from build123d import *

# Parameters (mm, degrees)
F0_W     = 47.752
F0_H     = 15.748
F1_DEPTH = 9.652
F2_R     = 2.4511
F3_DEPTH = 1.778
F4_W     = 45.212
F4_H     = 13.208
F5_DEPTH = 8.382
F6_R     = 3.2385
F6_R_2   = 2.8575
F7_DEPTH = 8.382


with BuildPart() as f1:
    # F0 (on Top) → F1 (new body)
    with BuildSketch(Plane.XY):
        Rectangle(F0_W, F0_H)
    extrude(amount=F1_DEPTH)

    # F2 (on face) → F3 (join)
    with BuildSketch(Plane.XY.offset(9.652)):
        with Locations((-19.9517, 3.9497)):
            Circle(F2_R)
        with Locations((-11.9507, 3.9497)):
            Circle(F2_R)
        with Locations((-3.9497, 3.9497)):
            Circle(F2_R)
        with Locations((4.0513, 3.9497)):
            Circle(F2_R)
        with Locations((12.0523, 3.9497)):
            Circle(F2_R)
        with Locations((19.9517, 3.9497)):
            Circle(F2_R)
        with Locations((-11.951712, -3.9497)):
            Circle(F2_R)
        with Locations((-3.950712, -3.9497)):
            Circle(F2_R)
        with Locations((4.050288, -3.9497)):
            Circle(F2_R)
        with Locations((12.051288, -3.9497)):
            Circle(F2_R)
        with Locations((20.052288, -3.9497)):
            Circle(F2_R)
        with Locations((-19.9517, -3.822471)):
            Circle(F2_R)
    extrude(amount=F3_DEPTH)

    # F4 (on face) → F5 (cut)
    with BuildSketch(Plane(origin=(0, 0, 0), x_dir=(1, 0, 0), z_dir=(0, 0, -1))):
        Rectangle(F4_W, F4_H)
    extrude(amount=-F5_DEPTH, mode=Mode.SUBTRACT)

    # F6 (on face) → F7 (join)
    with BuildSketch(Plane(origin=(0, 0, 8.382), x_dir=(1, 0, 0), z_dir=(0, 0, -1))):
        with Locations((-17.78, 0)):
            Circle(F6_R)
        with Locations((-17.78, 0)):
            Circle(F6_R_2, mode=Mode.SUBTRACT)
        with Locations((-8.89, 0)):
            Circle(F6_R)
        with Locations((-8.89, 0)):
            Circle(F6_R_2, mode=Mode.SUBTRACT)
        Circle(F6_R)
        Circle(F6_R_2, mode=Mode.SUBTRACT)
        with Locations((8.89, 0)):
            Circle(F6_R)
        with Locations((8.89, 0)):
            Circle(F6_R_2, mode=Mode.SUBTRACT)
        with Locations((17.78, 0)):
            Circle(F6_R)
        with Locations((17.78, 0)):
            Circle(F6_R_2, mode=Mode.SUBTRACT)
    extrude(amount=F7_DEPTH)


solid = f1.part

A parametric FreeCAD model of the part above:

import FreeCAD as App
import Part
import Sketcher
from FreeCAD import Vector
Q = App.Units.Quantity

doc = App.newDocument("Part")
params = doc.addObject("Spreadsheet::Sheet", "Params")
for row, (alias, value) in enumerate([
    ("sketch1_width", "1.88 in"),
    ("sketch1_height", "0.62 in"),
    ("pad1_length", "0.38 in"),
    ("sketch2_diameter", "0.193 in"),
    ("pad2_length", "0.07 in"),
    ("sketch3_width", "1.78 in"),
    ("sketch3_height", "0.52 in"),
    ("pocket1_length", "0.33 in"),
    ("sketch4_diameter", "0.255 in"),
    ("sketch4_diameter2", "0.225 in"),
    ("pad3_length", "0.33 in"),
], start=1):
    params.set(f"A{row}", alias)
    params.set(f"B{row}", "=" + value)
    params.setAlias(f"B{row}", alias)

body = doc.addObject("PartDesign::Body", "Body")

sketch1 = doc.addObject("Sketcher::SketchObject", "Sketch")
body.addObject(sketch1)
sketch1.AttachmentSupport = (doc.XY_Plane, [""])
sketch1.MapMode = "FlatFace"
sketch1.addGeometry([
    Part.LineSegment(Vector(-23.876, 7.874, 0), Vector(-23.876, -7.874, 0)),
    Part.LineSegment(Vector(-23.876, -7.874, 0), Vector(23.876, -7.874, 0)),
    Part.LineSegment(Vector(23.876, -7.874, 0), Vector(23.876, 7.874, 0)),
    Part.LineSegment(Vector(23.876, 7.874, 0), Vector(-23.876, 7.874, 0)),
], False)
sketch1.addConstraint([
    Sketcher.Constraint("Coincident", 0, 2, 1, 1),
    Sketcher.Constraint("Coincident", 1, 2, 2, 1),
    Sketcher.Constraint("Coincident", 2, 2, 3, 1),
    Sketcher.Constraint("Coincident", 3, 2, 0, 1),
    Sketcher.Constraint("Vertical", 0),
    Sketcher.Constraint("Horizontal", 1),
    Sketcher.Constraint("Vertical", 2),
    Sketcher.Constraint("Horizontal", 3),
    Sketcher.Constraint("Symmetric", 0, 2, 2, 2, -1, 1),
    Sketcher.Constraint("DistanceX", 1, 1, 1, 2, Q("1.88 in")),
    Sketcher.Constraint("DistanceY", 0, 2, 0, 1, Q("0.62 in")),
])
sketch1.setExpression("Constraints[9]", "Params.sketch1_width")
sketch1.setExpression("Constraints[10]", "Params.sketch1_height")
pad1 = doc.addObject("PartDesign::Pad", "Pad")
body.addObject(pad1)
pad1.Profile = sketch1
pad1.setExpression("Length", "Params.pad1_length")

sketch2 = doc.addObject("Sketcher::SketchObject", "Sketch001")
body.addObject(sketch2)
sketch2.AttachmentSupport = (doc.XY_Plane, [""])
sketch2.MapMode = "FlatFace"
sketch2.AttachmentOffset = App.Placement(Vector(0, 0, 0.38 * 25.4), App.Rotation())
sketch2.addGeometry([
    Part.Circle(Vector(-19.9517, 3.9497, 0), Vector(0, 0, 1), 2.4511),
    Part.Circle(Vector(-11.9507, 3.9497, 0), Vector(0, 0, 1), 2.4511),
    Part.Circle(Vector(-3.9497, 3.9497, 0), Vector(0, 0, 1), 2.4511),
    Part.Circle(Vector(4.0513, 3.9497, 0), Vector(0, 0, 1), 2.4511),
    Part.Circle(Vector(12.0523, 3.9497, 0), Vector(0, 0, 1), 2.4511),
    Part.Circle(Vector(19.9517, 3.9497, 0), Vector(0, 0, 1), 2.4511),
    Part.Circle(Vector(-11.951712, -3.9497, 0), Vector(0, 0, 1), 2.4511),
    Part.Circle(Vector(-3.950712, -3.9497, 0), Vector(0, 0, 1), 2.4511),
    Part.Circle(Vector(4.050288, -3.9497, 0), Vector(0, 0, 1), 2.4511),
    Part.Circle(Vector(12.051288, -3.9497, 0), Vector(0, 0, 1), 2.4511),
    Part.Circle(Vector(20.052288, -3.9497, 0), Vector(0, 0, 1), 2.4511),
    Part.Circle(Vector(-19.9517, -3.822471, 0), Vector(0, 0, 1), 2.4511),
], False)
sketch2.addConstraint([
    Sketcher.Constraint("Equal", 0, 1),
    Sketcher.Constraint("Equal", 1, 2),
    Sketcher.Constraint("Equal", 2, 3),
    Sketcher.Constraint("Equal", 3, 4),
    Sketcher.Constraint("Equal", 4, 5),
    Sketcher.Constraint("Equal", 5, 6),
    Sketcher.Constraint("Equal", 6, 7),
    Sketcher.Constraint("Equal", 7, 8),
    Sketcher.Constraint("Equal", 8, 9),
    Sketcher.Constraint("Equal", 9, 10),
    Sketcher.Constraint("Equal", 10, 11),
    Sketcher.Constraint("Symmetric", 0, 3, 5, 3, -2),
    Sketcher.Constraint("Horizontal", 0, 3, 1, 3),
    Sketcher.Constraint("Horizontal", 1, 3, 2, 3),
    Sketcher.Constraint("Horizontal", 2, 3, 3, 3),
    Sketcher.Constraint("Horizontal", 3, 3, 4, 3),
    Sketcher.Constraint("Horizontal", 6, 3, 7, 3),
    Sketcher.Constraint("Horizontal", 7, 3, 8, 3),
    Sketcher.Constraint("Horizontal", 8, 3, 9, 3),
    Sketcher.Constraint("Horizontal", 9, 3, 10, 3),
    Sketcher.Constraint("Vertical", 0, 3, 11, 3),
    Sketcher.Constraint("Diameter", 0, Q("0.193 in")),
    Sketcher.Constraint("DistanceX", 0, 3, 2, 3, Q("0.63 in")),
    Sketcher.Constraint("DistanceX", 1, 3, 3, 3, Q("0.63 in")),
    Sketcher.Constraint("DistanceX", 2, 3, 4, 3, Q("0.63 in")),
    Sketcher.Constraint("DistanceX", 6, 3, 8, 3, Q("0.63 in")),
    Sketcher.Constraint("DistanceX", 7, 3, 9, 3, Q("0.63 in")),
    Sketcher.Constraint("DistanceX", 8, 3, 10, 3, Q("0.63 in")),
    Sketcher.Constraint("DistanceX", 0, 3, 1, 3, Q("0.315 in")),
    Sketcher.Constraint("DistanceX", 4, 3, 5, 3, Q("0.311 in")),
    Sketcher.Constraint("DistanceY", 6, 3, 1, 3, Q("0.311 in")),
    Sketcher.Constraint("DistanceX", 6, 3, 7, 3, Q("0.315 in")),
    Sketcher.Constraint("DistanceY", -1, 1, 0, 3, Q("0.1555 in")),
    Sketcher.Constraint("DistanceX", 7, 3, -1, 1, Q("3.950712 mm")),
    Sketcher.Constraint("DistanceY", 11, 3, -1, 1, Q("3.822471 mm")),
])
sketch2.setExpression("Constraints[21]", "Params.sketch2_diameter")
pad2 = doc.addObject("PartDesign::Pad", "Pad001")
body.addObject(pad2)
pad2.Profile = sketch2
pad2.setExpression("Length", "Params.pad2_length")

sketch3 = doc.addObject("Sketcher::SketchObject", "Sketch002")
body.addObject(sketch3)
sketch3.AttachmentSupport = (doc.XY_Plane, [""])
sketch3.MapMode = "FlatFace"
sketch3.addGeometry([
    Part.LineSegment(Vector(-22.606, -6.604, 0), Vector(-22.606, 6.604, 0)),
    Part.LineSegment(Vector(-22.606, 6.604, 0), Vector(22.606, 6.604, 0)),
    Part.LineSegment(Vector(22.606, 6.604, 0), Vector(22.606, -6.604, 0)),
    Part.LineSegment(Vector(22.606, -6.604, 0), Vector(-22.606, -6.604, 0)),
], False)
sketch3.addConstraint([
    Sketcher.Constraint("Coincident", 0, 2, 1, 1),
    Sketcher.Constraint("Coincident", 1, 2, 2, 1),
    Sketcher.Constraint("Coincident", 2, 2, 3, 1),
    Sketcher.Constraint("Coincident", 3, 2, 0, 1),
    Sketcher.Constraint("Vertical", 0),
    Sketcher.Constraint("Horizontal", 1),
    Sketcher.Constraint("Vertical", 2),
    Sketcher.Constraint("Horizontal", 3),
    Sketcher.Constraint("Symmetric", 0, 2, 2, 2, -1, 1),
    Sketcher.Constraint("DistanceX", 1, 1, 1, 2, Q("1.78 in")),
    Sketcher.Constraint("DistanceY", 0, 1, 0, 2, Q("0.52 in")),
])
sketch3.setExpression("Constraints[9]", "Params.sketch3_width")
sketch3.setExpression("Constraints[10]", "Params.sketch3_height")
pocket1 = doc.addObject("PartDesign::Pocket", "Pocket")
body.addObject(pocket1)
pocket1.Profile = sketch3
pocket1.setExpression("Length", "Params.pocket1_length")
pocket1.Reversed = True

sketch4 = doc.addObject("Sketcher::SketchObject", "Sketch003")
body.addObject(sketch4)
sketch4.AttachmentSupport = (doc.XY_Plane, [""])
sketch4.MapMode = "FlatFace"
sketch4.AttachmentOffset = App.Placement(Vector(0, 0, 0.33 * 25.4), App.Rotation())
sketch4.addGeometry([
    Part.Circle(Vector(-17.78, 0, 0), Vector(0, 0, 1), 3.2385),
    Part.Circle(Vector(-17.78, 0, 0), Vector(0, 0, 1), 2.8575),
    Part.Circle(Vector(-8.89, 0, 0), Vector(0, 0, 1), 3.2385),
    Part.Circle(Vector(-8.89, 0, 0), Vector(0, 0, 1), 2.8575),
    Part.Circle(Vector(0, 0, 0), Vector(0, 0, 1), 3.2385),
    Part.Circle(Vector(0, 0, 0), Vector(0, 0, 1), 2.8575),
    Part.Circle(Vector(8.89, 0, 0), Vector(0, 0, 1), 3.2385),
    Part.Circle(Vector(8.89, 0, 0), Vector(0, 0, 1), 2.8575),
    Part.Circle(Vector(17.78, 0, 0), Vector(0, 0, 1), 3.2385),
    Part.Circle(Vector(17.78, 0, 0), Vector(0, 0, 1), 2.8575),
], False)
sketch4.addConstraint([
    Sketcher.Constraint("Coincident", 4, 3, -1, 1),
    Sketcher.Constraint("Coincident", 5, 3, -1, 1),
    Sketcher.Constraint("Coincident", 1, 3, 0, 3),
    Sketcher.Constraint("Coincident", 3, 3, 2, 3),
    Sketcher.Constraint("Coincident", 7, 3, 6, 3),
    Sketcher.Constraint("Coincident", 9, 3, 8, 3),
    Sketcher.Constraint("Equal", 0, 2),
    Sketcher.Constraint("Equal", 1, 3),
    Sketcher.Constraint("Equal", 2, 4),
    Sketcher.Constraint("Equal", 3, 5),
    Sketcher.Constraint("Equal", 4, 6),
    Sketcher.Constraint("Equal", 5, 7),
    Sketcher.Constraint("Equal", 6, 8),
    Sketcher.Constraint("Equal", 7, 9),
    Sketcher.Constraint("Symmetric", 2, 3, 6, 3, -1, 1),
    Sketcher.Constraint("Symmetric", 0, 3, 8, 3, -1, 1),
    Sketcher.Constraint("PointOnObject", 0, 3, -1),
    Sketcher.Constraint("PointOnObject", 2, 3, -1),
    Sketcher.Constraint("Diameter", 0, Q("0.255 in")),
    Sketcher.Constraint("Diameter", 1, Q("0.225 in")),
    Sketcher.Constraint("DistanceX", 0, 3, -1, 1, Q("0.7 in")),
    Sketcher.Constraint("DistanceX", 2, 3, 6, 3, Q("0.7 in")),
])
sketch4.setExpression("Constraints[18]", "Params.sketch4_diameter")
sketch4.setExpression("Constraints[19]", "Params.sketch4_diameter2")
pad3 = doc.addObject("PartDesign::Pad", "Pad002")
body.addObject(pad3)
pad3.Profile = sketch4
pad3.setExpression("Length", "Params.pad3_length")
pad3.Reversed = True

doc.recompute()
